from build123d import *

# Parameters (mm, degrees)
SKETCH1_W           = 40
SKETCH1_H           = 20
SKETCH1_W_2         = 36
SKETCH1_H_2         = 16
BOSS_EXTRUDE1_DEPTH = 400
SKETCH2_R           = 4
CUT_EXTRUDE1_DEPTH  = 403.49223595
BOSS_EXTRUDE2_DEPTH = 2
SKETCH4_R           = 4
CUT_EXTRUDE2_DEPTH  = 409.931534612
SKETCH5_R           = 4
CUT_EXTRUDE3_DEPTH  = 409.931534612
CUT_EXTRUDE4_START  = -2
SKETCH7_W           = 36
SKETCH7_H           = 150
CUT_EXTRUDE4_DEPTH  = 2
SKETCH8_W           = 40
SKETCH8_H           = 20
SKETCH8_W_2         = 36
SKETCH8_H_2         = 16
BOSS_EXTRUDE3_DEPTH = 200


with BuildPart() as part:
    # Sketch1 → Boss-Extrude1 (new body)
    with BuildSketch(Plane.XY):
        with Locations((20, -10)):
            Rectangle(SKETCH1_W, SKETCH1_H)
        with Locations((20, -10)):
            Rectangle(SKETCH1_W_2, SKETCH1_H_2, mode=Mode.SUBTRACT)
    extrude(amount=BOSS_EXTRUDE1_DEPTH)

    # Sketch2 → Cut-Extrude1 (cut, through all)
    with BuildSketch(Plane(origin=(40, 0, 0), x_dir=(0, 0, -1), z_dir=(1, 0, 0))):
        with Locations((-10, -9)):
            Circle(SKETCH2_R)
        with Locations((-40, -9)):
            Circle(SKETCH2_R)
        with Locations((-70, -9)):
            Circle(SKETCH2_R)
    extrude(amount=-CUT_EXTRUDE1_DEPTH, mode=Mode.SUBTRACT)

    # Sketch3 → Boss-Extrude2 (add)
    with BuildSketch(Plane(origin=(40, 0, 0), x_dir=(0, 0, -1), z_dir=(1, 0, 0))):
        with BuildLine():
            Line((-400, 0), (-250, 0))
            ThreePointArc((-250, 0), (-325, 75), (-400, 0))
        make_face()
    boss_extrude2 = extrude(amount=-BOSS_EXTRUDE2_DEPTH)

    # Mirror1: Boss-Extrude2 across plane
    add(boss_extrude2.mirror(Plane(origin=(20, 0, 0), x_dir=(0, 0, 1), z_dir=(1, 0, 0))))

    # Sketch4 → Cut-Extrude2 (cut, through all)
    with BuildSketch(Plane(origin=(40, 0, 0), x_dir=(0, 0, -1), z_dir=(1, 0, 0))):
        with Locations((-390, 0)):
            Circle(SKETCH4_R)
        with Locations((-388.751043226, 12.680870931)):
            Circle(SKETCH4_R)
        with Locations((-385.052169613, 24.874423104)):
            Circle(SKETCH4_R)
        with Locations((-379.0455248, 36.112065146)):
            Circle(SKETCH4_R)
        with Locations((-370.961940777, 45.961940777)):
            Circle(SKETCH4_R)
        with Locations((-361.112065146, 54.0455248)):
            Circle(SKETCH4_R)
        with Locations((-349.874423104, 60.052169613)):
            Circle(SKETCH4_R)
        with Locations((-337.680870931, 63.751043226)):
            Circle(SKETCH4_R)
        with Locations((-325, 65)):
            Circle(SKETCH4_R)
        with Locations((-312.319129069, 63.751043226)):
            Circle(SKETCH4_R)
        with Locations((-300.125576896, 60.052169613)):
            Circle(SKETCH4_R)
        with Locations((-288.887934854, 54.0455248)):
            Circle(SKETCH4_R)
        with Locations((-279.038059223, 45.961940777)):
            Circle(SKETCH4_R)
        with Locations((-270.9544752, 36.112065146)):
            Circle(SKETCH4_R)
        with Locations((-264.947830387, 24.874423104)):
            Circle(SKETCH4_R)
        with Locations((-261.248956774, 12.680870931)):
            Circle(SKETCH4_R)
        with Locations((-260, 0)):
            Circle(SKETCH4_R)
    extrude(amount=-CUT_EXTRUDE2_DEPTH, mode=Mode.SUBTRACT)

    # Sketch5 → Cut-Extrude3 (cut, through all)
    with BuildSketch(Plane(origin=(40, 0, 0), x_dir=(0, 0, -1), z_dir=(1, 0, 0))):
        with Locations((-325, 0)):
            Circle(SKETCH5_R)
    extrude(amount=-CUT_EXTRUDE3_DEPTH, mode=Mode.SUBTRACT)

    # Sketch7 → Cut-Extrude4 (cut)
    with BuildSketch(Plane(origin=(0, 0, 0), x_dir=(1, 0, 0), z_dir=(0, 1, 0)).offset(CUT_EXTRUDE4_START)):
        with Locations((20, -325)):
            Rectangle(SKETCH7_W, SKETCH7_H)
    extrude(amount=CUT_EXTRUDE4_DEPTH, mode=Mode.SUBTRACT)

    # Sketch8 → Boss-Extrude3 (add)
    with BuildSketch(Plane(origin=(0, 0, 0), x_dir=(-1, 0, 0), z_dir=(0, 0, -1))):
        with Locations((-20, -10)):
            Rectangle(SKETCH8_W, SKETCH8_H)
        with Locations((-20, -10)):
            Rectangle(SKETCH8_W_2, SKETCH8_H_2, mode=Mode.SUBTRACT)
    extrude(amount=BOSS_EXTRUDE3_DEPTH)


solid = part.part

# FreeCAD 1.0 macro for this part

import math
import FreeCAD as App
import Part
import Sketcher
Q = App.Units.Quantity


def add_polygon(sketch, points):
    """Adds a closed chain of lines whose ends are joined by coincident constraints."""
    first, n = sketch.GeometryCount, len(points)
    for a, b in zip(points, points[1:] + points[:1]):
        sketch.addGeometry(Part.LineSegment(App.Vector(*a, 0), App.Vector(*b, 0)), False)
    for i in range(n):
        sketch.addConstraint(Sketcher.Constraint("Coincident", first + i, 2, first + (i + 1) % n, 1))

doc = App.newDocument("Part")
body = doc.addObject("PartDesign::Body", "Body")

# Sketch on XY plane
sketch1 = body.newObject("Sketcher::SketchObject", "Sketch")
sketch1.AttachmentSupport = (doc.getObject("XY_Plane"), [""])
sketch1.MapMode = "FlatFace"
add_polygon(sketch1, [(0, 0), (0, -20), (40, -20), (40, 0)])  # lines 0-3
add_polygon(sketch1, [(38, -18), (2, -18), (2, -2), (38, -2)])  # lines 4-7
sketch1.addConstraint(Sketcher.Constraint("Vertical", 0))
sketch1.addConstraint(Sketcher.Constraint("Horizontal", 1))
sketch1.addConstraint(Sketcher.Constraint("Vertical", 2))
sketch1.addConstraint(Sketcher.Constraint("Horizontal", 3))
sketch1.addConstraint(Sketcher.Constraint("Horizontal", 4))
sketch1.addConstraint(Sketcher.Constraint("Vertical", 5))
sketch1.addConstraint(Sketcher.Constraint("Horizontal", 6))
sketch1.addConstraint(Sketcher.Constraint("Vertical", 7))
sketch1.addConstraint(Sketcher.Constraint("Coincident", 3, 2, -1, 1))
sketch1.addConstraint(Sketcher.Constraint("DistanceX", 1, 1, 1, 2, Q("40 mm")))
sketch1.addConstraint(Sketcher.Constraint("DistanceX", 4, 2, 4, 1, Q("36 mm")))
sketch1.addConstraint(Sketcher.Constraint("DistanceY", 0, 2, 0, 1, Q("20 mm")))
sketch1.addConstraint(Sketcher.Constraint("DistanceY", 5, 1, 5, 2, Q("16 mm")))
sketch1.addConstraint(Sketcher.Constraint("DistanceX", -1, 1, 4, 2, Q("2 mm")))
sketch1.addConstraint(Sketcher.Constraint("DistanceY", 4, 2, -1, 1, Q("18 mm")))
pad1 = body.newObject("PartDesign::Pad", "Pad")
pad1.Profile = sketch1
pad1.Length = 400

# Sketch on YZ plane
sketch2 = body.newObject("Sketcher::SketchObject", "Sketch001")
sketch2.AttachmentSupport = (doc.getObject("YZ_Plane"), [""])
sketch2.MapMode = "FlatFace"
sketch2.AttachmentOffset = App.Placement(App.Vector(0, 0, 40), App.Rotation())
sketch2.addGeometry(Part.Circle(App.Vector(-9, 10, 0), App.Vector(0, 0, 1), 4), False)
sketch2.addGeometry(Part.Circle(App.Vector(-9, 40, 0), App.Vector(0, 0, 1), 4), False)
sketch2.addGeometry(Part.Circle(App.Vector(-9, 70, 0), App.Vector(0, 0, 1), 4), False)
sketch2.addConstraint(Sketcher.Constraint("Equal", 0, 1))
sketch2.addConstraint(Sketcher.Constraint("Equal", 1, 2))
sketch2.addConstraint(Sketcher.Constraint("Vertical", 0, 3, 1, 3))
sketch2.addConstraint(Sketcher.Constraint("Vertical", 1, 3, 2, 3))
sketch2.addConstraint(Sketcher.Constraint("Diameter", 0, Q("8 mm")))
sketch2.addConstraint(Sketcher.Constraint("DistanceX", 0, 3, -1, 1, Q("9 mm")))
sketch2.addConstraint(Sketcher.Constraint("DistanceY", -1, 1, 0, 3, Q("10 mm")))
sketch2.addConstraint(Sketcher.Constraint("DistanceY", -1, 1, 1, 3, Q("40 mm")))
sketch2.addConstraint(Sketcher.Constraint("DistanceY", -1, 1, 2, 3, Q("70 mm")))
pocket1 = body.newObject("PartDesign::Pocket", "Pocket")
pocket1.Profile = sketch2
pocket1.Type = "ThroughAll"

# Sketch on YZ plane
sketch3 = body.newObject("Sketcher::SketchObject", "Sketch002")
sketch3.AttachmentSupport = (doc.getObject("YZ_Plane"), [""])
sketch3.MapMode = "FlatFace"
sketch3.AttachmentOffset = App.Placement(App.Vector(0, 0, 40), App.Rotation())
sketch3.addGeometry(Part.LineSegment(App.Vector(0, 400, 0), App.Vector(0, 250, 0)), False)
sketch3.addGeometry(Part.ArcOfCircle(Part.Circle(App.Vector(0, 325, 0), App.Vector(0, 0, 1), 75), math.radians(-90), math.radians(90)), False)
sketch3.addConstraint(Sketcher.Constraint("Coincident", 0, 1, 1, 2))
sketch3.addConstraint(Sketcher.Constraint("Coincident", 1, 1, 0, 2))
sketch3.addConstraint(Sketcher.Constraint("Vertical", 0))
sketch3.addConstraint(Sketcher.Constraint("PointOnObject", 1, 3, -2))
sketch3.addConstraint(Sketcher.Constraint("PointOnObject", 0, 1, -2))
sketch3.addConstraint(Sketcher.Constraint("Radius", 1, Q("75 mm")))
sketch3.addConstraint(Sketcher.Constraint("DistanceY", -1, 1, 1, 3, Q("325 mm")))
pad2 = body.newObject("PartDesign::Pad", "Pad001")
pad2.Profile = sketch3
pad2.Length = 2
pad2.Reversed = True
doc.recompute()

datumplane = body.newObject("PartDesign::Plane", "DatumPlane")
datumplane.AttachmentSupport = (doc.getObject("YZ_Plane"), [""])
datumplane.MapMode = "FlatFace"
datumplane.AttachmentOffset = App.Placement(App.Vector(0, 0, 20), App.Rotation())
mirrored = body.newObject("PartDesign::Mirrored", "Mirrored")
mirrored.Originals = [pad2]
mirrored.MirrorPlane = (datumplane, [""])
body.Tip = mirrored

# Sketch on YZ plane
sketch4 = body.newObject("Sketcher::SketchObject", "Sketch003")
sketch4.AttachmentSupport = (doc.getObject("YZ_Plane"), [""])
sketch4.MapMode = "FlatFace"
sketch4.AttachmentOffset = App.Placement(App.Vector(0, 0, 40), App.Rotation())
sketch4.addGeometry(Part.Circle(App.Vector(0, 390, 0), App.Vector(0, 0, 1), 4), False)
sketch4.addGeometry(Part.Circle(App.Vector(12.7, 388.8, 0), App.Vector(0, 0, 1), 4), False)
sketch4.addGeometry(Part.Circle(App.Vector(24.9, 385.1, 0), App.Vector(0, 0, 1), 4), False)
sketch4.addGeometry(Part.Circle(App.Vector(36.1, 379, 0), App.Vector(0, 0, 1), 4), False)
sketch4.addGeometry(Part.Circle(App.Vector(46, 371, 0), App.Vector(0, 0, 1), 4), False)
sketch4.addGeometry(Part.Circle(App.Vector(54, 361.1, 0), App.Vector(0, 0, 1), 4), False)
sketch4.addGeometry(Part.Circle(App.Vector(60.1, 349.9, 0), App.Vector(0, 0, 1), 4), False)
sketch4.addGeometry(Part.Circle(App.Vector(63.8, 337.7, 0), App.Vector(0, 0, 1), 4), False)
sketch4.addGeometry(Part.Circle(App.Vector(65, 325, 0), App.Vector(0, 0, 1), 4), False)
sketch4.addGeometry(Part.Circle(App.Vector(63.8, 312.3, 0), App.Vector(0, 0, 1), 4), False)
sketch4.addGeometry(Part.Circle(App.Vector(60.1, 300.1, 0), App.Vector(0, 0, 1), 4), False)
sketch4.addGeometry(Part.Circle(App.Vector(54, 288.9, 0), App.Vector(0, 0, 1), 4), False)
sketch4.addGeometry(Part.Circle(App.Vector(46, 279, 0), App.Vector(0, 0, 1), 4), False)
sketch4.addGeometry(Part.Circle(App.Vector(36.1, 271, 0), App.Vector(0, 0, 1), 4), False)
sketch4.addGeometry(Part.Circle(App.Vector(24.9, 264.9, 0), App.Vector(0, 0, 1), 4), False)
sketch4.addGeometry(Part.Circle(App.Vector(12.7, 261.2, 0), App.Vector(0, 0, 1), 4), False)
sketch4.addGeometry(Part.Circle(App.Vector(0, 260, 0), App.Vector(0, 0, 1), 4), False)
sketch4.addConstraint(Sketcher.Constraint("Equal", 0, 1))
sketch4.addConstraint(Sketcher.Constraint("Equal", 1, 2))
sketch4.addConstraint(Sketcher.Constraint("Equal", 2, 3))
sketch4.addConstraint(Sketcher.Constraint("Equal", 3, 4))
sketch4.addConstraint(Sketcher.Constraint("Equal", 4, 5))
sketch4.addConstraint(Sketcher.Constraint("Equal", 5, 6))
sketch4.addConstraint(Sketcher.Constraint("Equal", 6, 7))
sketch4.addConstraint(Sketcher.Constraint("Equal", 7, 8))
sketch4.addConstraint(Sketcher.Constraint("Equal", 8, 9))
sketch4.addConstraint(Sketcher.Constraint("Equal", 9, 10))
sketch4.addConstraint(Sketcher.Constraint("Equal", 10, 11))
sketch4.addConstraint(Sketcher.Constraint("Equal", 11, 12))
sketch4.addConstraint(Sketcher.Constraint("Equal", 12, 13))
sketch4.addConstraint(Sketcher.Constraint("Equal", 13, 14))
sketch4.addConstraint(Sketcher.Constraint("Equal", 14, 15))
sketch4.addConstraint(Sketcher.Constraint("Equal", 15, 16))
sketch4.addConstraint(Sketcher.Constraint("PointOnObject", 0, 3, -2))
sketch4.addConstraint(Sketcher.Constraint("PointOnObject", 16, 3, -2))
sketch4.addConstraint(Sketcher.Constraint("Vertical", 7, 3, 9, 3))
sketch4.addConstraint(Sketcher.Constraint("Vertical", 6, 3, 10, 3))
sketch4.addConstraint(Sketcher.Constraint("Vertical", 5, 3, 11, 3))
sketch4.addConstraint(Sketcher.Constraint("Vertical", 4, 3, 12, 3))
sketch4.addConstraint(Sketcher.Constraint("Vertical", 3, 3, 13, 3))
sketch4.addConstraint(Sketcher.Constraint("Vertical", 2, 3, 14, 3))
sketch4.addConstraint(Sketcher.Constraint("Vertical", 1, 3, 15, 3))
sketch4.addConstraint(Sketcher.Constraint("Diameter", 0, Q("8 mm")))
sketch4.addConstraint(Sketcher.Constraint("DistanceY", -1, 1, 0, 3, Q("390 mm")))
sketch4.addConstraint(Sketcher.Constraint("DistanceX", -1, 1, 8, 3, Q("65 mm")))
sketch4.addConstraint(Sketcher.Constraint("DistanceY", -1, 1, 8, 3, Q("325 mm")))
sketch4.addConstraint(Sketcher.Constraint("DistanceY", -1, 1, 16, 3, Q("260 mm")))
sketch4.addConstraint(Sketcher.Constraint("DistanceX", 2, 3, 5, 3, Q("29.171102 mm")))
sketch4.addConstraint(Sketcher.Constraint("DistanceY", 6, 3, 3, 3, Q("29.171102 mm")))
sketch4.addConstraint(Sketcher.Constraint("DistanceX", 1, 3, 6, 3, Q("47.371299 mm")))
sketch4.addConstraint(Sketcher.Constraint("DistanceY", 7, 3, 2, 3, Q("47.371299 mm")))
sketch4.addConstraint(Sketcher.Constraint("DistanceY", 13, 3, 10, 3, Q("29.171102 mm")))
sketch4.addConstraint(Sketcher.Constraint("DistanceY", 14, 3, 9, 3, Q("47.371299 mm")))
sketch4.addConstraint(Sketcher.Constraint("DistanceX", -1, 1, 1, 3, Q("12.680871 mm")))
sketch4.addConstraint(Sketcher.Constraint("DistanceY", -1, 1, 2, 3, Q("385.05217 mm")))
sketch4.addConstraint(Sketcher.Constraint("DistanceX", -1, 1, 4, 3, Q("45.961941 mm")))
sketch4.addConstraint(Sketcher.Constraint("DistanceY", -1, 1, 4, 3, Q("370.961941 mm")))
sketch4.addConstraint(Sketcher.Constraint("DistanceY", -1, 1, 9, 3, Q("312.319129 mm")))
sketch4.addConstraint(Sketcher.Constraint("DistanceY", -1, 1, 12, 3, Q("279.038059 mm")))
sketch4.addConstraint(Sketcher.Constraint("DistanceY", 3, 3, 1, 3, Q("9.705518 mm")))
sketch4.addConstraint(Sketcher.Constraint("DistanceX", 3, 3, 5, 3, Q("17.93346 mm")))
sketch4.addConstraint(Sketcher.Constraint("DistanceY", 5, 3, 3, 3, Q("17.93346 mm")))
sketch4.addConstraint(Sketcher.Constraint("DistanceX", 5, 3, 7, 3, Q("9.705518 mm")))
sketch4.addConstraint(Sketcher.Constraint("DistanceY", 10, 3, 5, 3, Q("60.986488 mm")))
sketch4.addConstraint(Sketcher.Constraint("DistanceY", 11, 3, 6, 3, Q("60.986488 mm")))
sketch4.addConstraint(Sketcher.Constraint("DistanceY", 15, 3, 13, 3, Q("9.705518 mm")))
sketch4.addConstraint(Sketcher.Constraint("DistanceY", -1, 1, 1, 3, Q("388.751043 mm")))
sketch4.addConstraint(Sketcher.Constraint("DistanceX", -1, 1, 2, 3, Q("24.874423 mm")))
pocket2 = body.newObject("PartDesign::Pocket", "Pocket001")
pocket2.Profile = sketch4
pocket2.Type = "ThroughAll"

# Sketch on YZ plane
sketch5 = body.newObject("Sketcher::SketchObject", "Sketch004")
sketch5.AttachmentSupport = (doc.getObject("YZ_Plane"), [""])
sketch5.MapMode = "FlatFace"
sketch5.AttachmentOffset = App.Placement(App.Vector(0, 0, 40), App.Rotation())
sketch5.addGeometry(Part.Circle(App.Vector(0, 325, 0), App.Vector(0, 0, 1), 4), False)
sketch5.addConstraint(Sketcher.Constraint("PointOnObject", 0, 3, -2))
sketch5.addConstraint(Sketcher.Constraint("Diameter", 0, Q("8 mm")))
sketch5.addConstraint(Sketcher.Constraint("DistanceY", -1, 1, 0, 3, Q("325 mm")))
pocket3 = body.newObject("PartDesign::Pocket", "Pocket002")
pocket3.Profile = sketch5
pocket3.Type = "ThroughAll"

# Sketch on XZ plane
sketch6 = body.newObject("Sketcher::SketchObject", "Sketch005")
sketch6.AttachmentSupport = (doc.getObject("XZ_Plane"), [""])
sketch6.MapMode = "FlatFace"
sketch6.AttachmentOffset = App.Placement(App.Vector(0, 0, 2), App.Rotation())
add_polygon(sketch6, [(2, 250), (2, 400), (38, 400), (38, 250)])  # lines 0-3
sketch6.addConstraint(Sketcher.Constraint("Vertical", 0))
sketch6.addConstraint(Sketcher.Constraint("Horizontal", 1))
sketch6.addConstraint(Sketcher.Constraint("Vertical", 2))
sketch6.addConstraint(Sketcher.Constraint("Horizontal", 3))
sketch6.addConstraint(Sketcher.Constraint("DistanceX", 1, 1, 1, 2, Q("36 mm")))
sketch6.addConstraint(Sketcher.Constraint("DistanceY", 0, 1, 0, 2, Q("150 mm")))
sketch6.addConstraint(Sketcher.Constraint("DistanceX", -1, 1, 0, 2, Q("2 mm")))
sketch6.addConstraint(Sketcher.Constraint("DistanceY", -1, 1, 0, 2, Q("400 mm")))
pocket4 = body.newObject("PartDesign::Pocket", "Pocket003")
pocket4.Profile = sketch6
pocket4.Length = 2

# Sketch on XY plane
sketch7 = body.newObject("Sketcher::SketchObject", "Sketch006")
sketch7.AttachmentSupport = (doc.getObject("XY_Plane"), [""])
sketch7.MapMode = "FlatFace"
add_polygon(sketch7, [(40, 0), (40, -20), (0, -20), (0, 0)])  # lines 0-3
add_polygon(sketch7, [(2, -18), (38, -18), (38, -2), (2, -2)])  # lines 4-7
sketch7.addConstraint(Sketcher.Constraint("Vertical", 0))
sketch7.addConstraint(Sketcher.Constraint("Horizontal", 1))
sketch7.addConstraint(Sketcher.Constraint("Vertical", 2))
sketch7.addConstraint(Sketcher.Constraint("Horizontal", 3))
sketch7.addConstraint(Sketcher.Constraint("Horizontal", 4))
sketch7.addConstraint(Sketcher.Constraint("Vertical", 5))
sketch7.addConstraint(Sketcher.Constraint("Horizontal", 6))
sketch7.addConstraint(Sketcher.Constraint("Vertical", 7))
sketch7.addConstraint(Sketcher.Constraint("Coincident", 2, 2, -1, 1))
sketch7.addConstraint(Sketcher.Constraint("DistanceX", 1, 2, 1, 1, Q("40 mm")))
sketch7.addConstraint(Sketcher.Constraint("DistanceX", 4, 1, 4, 2, Q("36 mm")))
sketch7.addConstraint(Sketcher.Constraint("DistanceY", 0, 2, 0, 1, Q("20 mm")))
sketch7.addConstraint(Sketcher.Constraint("DistanceY", 5, 1, 5, 2, Q("16 mm")))
sketch7.addConstraint(Sketcher.Constraint("DistanceX", -1, 1, 4, 2, Q("38 mm")))
sketch7.addConstraint(Sketcher.Constraint("DistanceY", 4, 2, -1, 1, Q("18 mm")))
pad3 = body.newObject("PartDesign::Pad", "Pad002")
pad3.Profile = sketch7
pad3.Length = 200
pad3.Reversed = True

doc.recompute()
